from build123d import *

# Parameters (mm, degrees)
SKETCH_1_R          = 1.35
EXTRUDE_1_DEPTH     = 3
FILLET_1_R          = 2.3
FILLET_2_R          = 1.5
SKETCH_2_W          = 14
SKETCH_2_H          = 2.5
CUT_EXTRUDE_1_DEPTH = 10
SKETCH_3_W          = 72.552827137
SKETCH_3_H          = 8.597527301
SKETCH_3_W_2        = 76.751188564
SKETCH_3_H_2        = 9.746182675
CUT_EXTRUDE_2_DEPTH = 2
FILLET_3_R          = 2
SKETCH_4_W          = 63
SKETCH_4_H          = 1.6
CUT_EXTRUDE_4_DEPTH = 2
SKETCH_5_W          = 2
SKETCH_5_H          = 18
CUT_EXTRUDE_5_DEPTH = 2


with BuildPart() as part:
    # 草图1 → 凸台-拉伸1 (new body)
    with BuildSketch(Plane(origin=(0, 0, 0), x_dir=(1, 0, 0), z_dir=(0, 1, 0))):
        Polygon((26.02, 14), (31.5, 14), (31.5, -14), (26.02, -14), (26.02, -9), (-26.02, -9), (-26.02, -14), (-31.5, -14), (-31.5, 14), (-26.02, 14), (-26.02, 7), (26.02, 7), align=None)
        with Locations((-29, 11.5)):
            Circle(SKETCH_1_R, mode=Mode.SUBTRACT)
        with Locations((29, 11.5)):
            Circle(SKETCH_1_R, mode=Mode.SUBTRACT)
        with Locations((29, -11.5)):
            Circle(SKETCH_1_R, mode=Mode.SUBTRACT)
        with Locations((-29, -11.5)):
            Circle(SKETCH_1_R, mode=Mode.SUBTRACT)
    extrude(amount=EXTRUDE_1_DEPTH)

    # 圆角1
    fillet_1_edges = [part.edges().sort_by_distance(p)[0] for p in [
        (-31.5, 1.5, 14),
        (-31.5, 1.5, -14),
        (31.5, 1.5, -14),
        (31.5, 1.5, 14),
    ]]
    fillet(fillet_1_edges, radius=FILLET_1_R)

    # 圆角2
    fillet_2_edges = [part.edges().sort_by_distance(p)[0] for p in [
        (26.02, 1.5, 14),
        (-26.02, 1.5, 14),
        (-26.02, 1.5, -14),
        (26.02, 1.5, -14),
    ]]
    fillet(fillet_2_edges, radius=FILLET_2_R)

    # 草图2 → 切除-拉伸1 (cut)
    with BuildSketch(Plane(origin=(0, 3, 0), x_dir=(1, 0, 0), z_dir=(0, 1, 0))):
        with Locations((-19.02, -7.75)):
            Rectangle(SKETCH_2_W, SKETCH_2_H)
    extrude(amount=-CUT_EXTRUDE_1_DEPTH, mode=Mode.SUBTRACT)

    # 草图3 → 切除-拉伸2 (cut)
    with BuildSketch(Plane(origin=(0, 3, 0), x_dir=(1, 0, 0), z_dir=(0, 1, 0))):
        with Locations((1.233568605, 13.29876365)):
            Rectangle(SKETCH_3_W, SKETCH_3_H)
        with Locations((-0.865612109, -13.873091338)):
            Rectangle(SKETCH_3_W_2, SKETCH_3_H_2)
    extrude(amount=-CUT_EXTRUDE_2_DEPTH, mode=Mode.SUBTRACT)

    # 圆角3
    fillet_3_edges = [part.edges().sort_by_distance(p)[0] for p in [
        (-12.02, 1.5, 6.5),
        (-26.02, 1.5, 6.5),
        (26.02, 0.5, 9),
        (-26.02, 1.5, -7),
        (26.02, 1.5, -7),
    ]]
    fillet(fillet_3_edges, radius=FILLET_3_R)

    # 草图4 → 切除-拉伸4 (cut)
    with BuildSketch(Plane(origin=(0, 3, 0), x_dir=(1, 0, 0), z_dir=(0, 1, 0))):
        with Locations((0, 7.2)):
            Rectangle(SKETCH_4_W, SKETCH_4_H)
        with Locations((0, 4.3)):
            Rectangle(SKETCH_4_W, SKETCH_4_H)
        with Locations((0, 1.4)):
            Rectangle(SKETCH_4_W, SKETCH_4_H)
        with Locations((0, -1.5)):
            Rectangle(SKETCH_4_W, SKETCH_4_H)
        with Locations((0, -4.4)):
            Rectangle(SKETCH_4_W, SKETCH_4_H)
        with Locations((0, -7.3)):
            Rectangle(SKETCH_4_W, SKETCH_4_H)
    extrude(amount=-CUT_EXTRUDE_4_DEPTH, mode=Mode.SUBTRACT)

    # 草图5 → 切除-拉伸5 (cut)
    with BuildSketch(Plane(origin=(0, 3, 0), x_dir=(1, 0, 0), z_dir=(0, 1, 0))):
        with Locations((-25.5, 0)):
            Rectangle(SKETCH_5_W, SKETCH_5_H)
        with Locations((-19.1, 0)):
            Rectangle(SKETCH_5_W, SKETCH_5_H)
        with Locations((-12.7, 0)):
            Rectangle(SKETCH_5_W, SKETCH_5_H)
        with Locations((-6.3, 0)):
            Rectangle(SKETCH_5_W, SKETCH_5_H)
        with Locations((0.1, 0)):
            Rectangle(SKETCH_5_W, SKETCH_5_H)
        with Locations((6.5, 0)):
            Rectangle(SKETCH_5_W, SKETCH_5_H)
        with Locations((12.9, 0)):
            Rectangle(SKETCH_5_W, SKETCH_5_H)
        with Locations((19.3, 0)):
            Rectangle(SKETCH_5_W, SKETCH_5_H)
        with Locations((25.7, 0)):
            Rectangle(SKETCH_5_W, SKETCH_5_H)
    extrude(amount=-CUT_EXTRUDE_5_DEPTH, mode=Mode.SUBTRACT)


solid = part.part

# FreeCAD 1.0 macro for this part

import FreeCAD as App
import Part
import Sketcher
Q = App.Units.Quantity


def edges_at(feature, points):
    """Names of the edges that pass closest to the given points."""
    edges = feature.Shape.Edges
    near = lambda p: min(range(len(edges)), key=lambda i: edges[i].distToShape(Part.Vertex(*p))[0])
    return sorted({f"Edge{near(p) + 1}" for p in points})

doc = App.newDocument("Part")
body = doc.addObject("PartDesign::Body", "Body")

# Sketch on XZ plane
sketch1 = doc.addObject("Sketcher::SketchObject", "Sketch")
body.addObject(sketch1)
sketch1.AttachmentSupport = (doc.XZ_Plane, [""])
sketch1.MapMode = "FlatFace"
sketch1.addGeometry([
    Part.LineSegment(App.Vector(31.5, -14, 0), App.Vector(26, -14, 0)),  # 0
    Part.LineSegment(App.Vector(26, -14, 0), App.Vector(26, -7, 0)),  # 1
    Part.LineSegment(App.Vector(26, -7, 0), App.Vector(-26, -7, 0)),  # 2
    Part.LineSegment(App.Vector(-26, -7, 0), App.Vector(-26, -14, 0)),  # 3
    Part.LineSegment(App.Vector(-26, -14, 0), App.Vector(-31.5, -14, 0)),  # 4
    Part.LineSegment(App.Vector(-31.5, -14, 0), App.Vector(-31.5, 14, 0)),  # 5
    Part.LineSegment(App.Vector(-31.5, 14, 0), App.Vector(-26, 14, 0)),  # 6
    Part.LineSegment(App.Vector(-26, 14, 0), App.Vector(-26, 9, 0)),  # 7
    Part.LineSegment(App.Vector(-26, 9, 0), App.Vector(26, 9, 0)),  # 8
    Part.LineSegment(App.Vector(26, 9, 0), App.Vector(26, 14, 0)),  # 9
    Part.LineSegment(App.Vector(26, 14, 0), App.Vector(31.5, 14, 0)),  # 10
    Part.LineSegment(App.Vector(31.5, 14, 0), App.Vector(31.5, -14, 0)),  # 11
    Part.Circle(App.Vector(29, 11.5, 0), App.Vector(0, 0, 1), 1.4),  # 12
    Part.Circle(App.Vector(-29, 11.5, 0), App.Vector(0, 0, 1), 1.4),  # 13
    Part.Circle(App.Vector(29, -11.5, 0), App.Vector(0, 0, 1), 1.4),  # 14
    Part.Circle(App.Vector(-29, -11.5, 0), App.Vector(0, 0, 1), 1.4),  # 15
], False)
sketch1.addConstraint([
    Sketcher.Constraint("Coincident", 0, 2, 1, 1),
    Sketcher.Constraint("Coincident", 1, 2, 2, 1),
    Sketcher.Constraint("Coincident", 2, 2, 3, 1),
    Sketcher.Constraint("Coincident", 3, 2, 4, 1),
    Sketcher.Constraint("Coincident", 4, 2, 5, 1),
    Sketcher.Constraint("Coincident", 5, 2, 6, 1),
    Sketcher.Constraint("Coincident", 6, 2, 7, 1),
    Sketcher.Constraint("Coincident", 7, 2, 8, 1),
    Sketcher.Constraint("Coincident", 8, 2, 9, 1),
    Sketcher.Constraint("Coincident", 9, 2, 10, 1),
    Sketcher.Constraint("Coincident", 10, 2, 11, 1),
    Sketcher.Constraint("Coincident", 11, 2, 0, 1),
    Sketcher.Constraint("Horizontal", 0),
    Sketcher.Constraint("Vertical", 1),
    Sketcher.Constraint("Horizontal", 2),
    Sketcher.Constraint("Vertical", 3),
    Sketcher.Constraint("Horizontal", 4),
    Sketcher.Constraint("Vertical", 5),
    Sketcher.Constraint("Horizontal", 6),
    Sketcher.Constraint("Vertical", 7),
    Sketcher.Constraint("Horizontal", 8),
    Sketcher.Constraint("Vertical", 9),
    Sketcher.Constraint("Horizontal", 10),
    Sketcher.Constraint("Vertical", 11),
    Sketcher.Constraint("Equal", 12, 13),
    Sketcher.Constraint("Equal", 13, 14),
    Sketcher.Constraint("Equal", 14, 15),
    Sketcher.Constraint("Symmetric", 13, 3, 14, 3, -1, 1),
    Sketcher.Constraint("Symmetric", 12, 3, 15, 3, -1, 1),
    Sketcher.Constraint("Symmetric", 0, 2, 6, 2, -1, 1),
    Sketcher.Constraint("Symmetric", 3, 2, 9, 2, -1, 1),
    Sketcher.Constraint("Symmetric", 12, 3, 13, 3, -2),
    Sketcher.Constraint("Symmetric", 0, 2, 3, 2, -2),
    Sketcher.Constraint("Equal", 0, 4),
    Sketcher.Constraint("Diameter", 12, Q("2.7 mm")),
    Sketcher.Constraint("DistanceY", 1, 1, 1, 2, Q("7 mm")),
    Sketcher.Constraint("DistanceY", 5, 1, 5, 2, Q("28 mm")),
    Sketcher.Constraint("DistanceY", 7, 2, 7, 1, Q("5 mm")),
    Sketcher.Constraint("DistanceX", -1, 1, 12, 3, Q("29 mm")),
    Sketcher.Constraint("DistanceY", 14, 3, 12, 3, Q("23 mm")),
    Sketcher.Constraint("DistanceX", 0, 2, 0, 1, Q("5.48 mm")),
    Sketcher.Constraint("DistanceX", 2, 2, 2, 1, Q("52.04 mm")),
])
pad1 = doc.addObject("PartDesign::Pad", "Pad")
body.addObject(pad1)
pad1.Profile = sketch1
pad1.Length = 3
pad1.Reversed = True
doc.recompute()

fillet = doc.addObject("PartDesign::Fillet", "Fillet")
body.addObject(fillet)
fillet.Base = (pad1, edges_at(pad1, [
    (-31.5, 1.5, 14),
    (-31.5, 1.5, -14),
    (31.5, 1.5, -14),
    (31.5, 1.5, 14),
]))
fillet.Radius = 2.3
doc.recompute()

fillet2 = doc.addObject("PartDesign::Fillet", "Fillet001")
body.addObject(fillet2)
fillet2.Base = (fillet, edges_at(fillet, [
    (26.02, 1.5, 14),
    (-26.02, 1.5, 14),
    (-26.02, 1.5, -14),
    (26.02, 1.5, -14),
]))
fillet2.Radius = 1.5

# Sketch on XZ plane
sketch2 = doc.addObject("Sketcher::SketchObject", "Sketch001")
body.addObject(sketch2)
sketch2.AttachmentSupport = (doc.XZ_Plane, [""])
sketch2.MapMode = "FlatFace"
sketch2.AttachmentOffset = App.Placement(App.Vector(0, 0, -3), App.Rotation())
sketch2.addGeometry([
    Part.LineSegment(App.Vector(-26, 6.5, 0), App.Vector(-26, 9, 0)),
    Part.LineSegment(App.Vector(-26, 9, 0), App.Vector(-12, 9, 0)),
    Part.LineSegment(App.Vector(-12, 9, 0), App.Vector(-12, 6.5, 0)),
    Part.LineSegment(App.Vector(-12, 6.5, 0), App.Vector(-26, 6.5, 0)),
], False)
sketch2.addConstraint([
    Sketcher.Constraint("Coincident", 0, 2, 1, 1),
    Sketcher.Constraint("Coincident", 1, 2, 2, 1),
    Sketcher.Constraint("Coincident", 2, 2, 3, 1),
    Sketcher.Constraint("Coincident", 3, 2, 0, 1),
    Sketcher.Constraint("Vertical", 0),
    Sketcher.Constraint("Horizontal", 1),
    Sketcher.Constraint("Vertical", 2),
    Sketcher.Constraint("Horizontal", 3),
    Sketcher.Constraint("DistanceX", 1, 1, 1, 2, Q("14 mm")),
    Sketcher.Constraint("DistanceY", 0, 1, 0, 2, Q("2.5 mm")),
    Sketcher.Constraint("DistanceY", -1, 1, 0, 2, Q("9 mm")),
    Sketcher.Constraint("DistanceX", 0, 2, -1, 1, Q("26.02 mm")),
])
pocket1 = doc.addObject("PartDesign::Pocket", "Pocket")
body.addObject(pocket1)
pocket1.Profile = sketch2
pocket1.Length = 10
pocket1.Reversed = True

# Sketch on XZ plane
sketch3 = doc.addObject("Sketcher::SketchObject", "Sketch002")
body.addObject(sketch3)
sketch3.AttachmentSupport = (doc.XZ_Plane, [""])
sketch3.MapMode = "FlatFace"
sketch3.AttachmentOffset = App.Placement(App.Vector(0, 0, -3), App.Rotation())
sketch3.addGeometry([
    Part.LineSegment(App.Vector(-35, -18, 0), App.Vector(-35, -9, 0)),  # 0
    Part.LineSegment(App.Vector(-35, -9, 0), App.Vector(38, -9, 0)),  # 1
    Part.LineSegment(App.Vector(38, -9, 0), App.Vector(38, -18, 0)),  # 2
    Part.LineSegment(App.Vector(38, -18, 0), App.Vector(-35, -18, 0)),  # 3
    Part.LineSegment(App.Vector(-39, 9, 0), App.Vector(-39, 19, 0)),  # 4
    Part.LineSegment(App.Vector(-39, 19, 0), App.Vector(38, 19, 0)),  # 5
    Part.LineSegment(App.Vector(38, 19, 0), App.Vector(38, 9, 0)),  # 6
    Part.LineSegment(App.Vector(38, 9, 0), App.Vector(-39, 9, 0)),  # 7
], False)
sketch3.addConstraint([
    Sketcher.Constraint("Coincident", 0, 2, 1, 1),
    Sketcher.Constraint("Coincident", 1, 2, 2, 1),
    Sketcher.Constraint("Coincident", 2, 2, 3, 1),
    Sketcher.Constraint("Coincident", 3, 2, 0, 1),
    Sketcher.Constraint("Coincident", 4, 2, 5, 1),
    Sketcher.Constraint("Coincident", 5, 2, 6, 1),
    Sketcher.Constraint("Coincident", 6, 2, 7, 1),
    Sketcher.Constraint("Coincident", 7, 2, 4, 1),
    Sketcher.Constraint("Vertical", 0),
    Sketcher.Constraint("Horizontal", 1),
    Sketcher.Constraint("Vertical", 2),
    Sketcher.Constraint("Horizontal", 3),
    Sketcher.Constraint("Vertical", 4),
    Sketcher.Constraint("Horizontal", 5),
    Sketcher.Constraint("Vertical", 6),
    Sketcher.Constraint("Horizontal", 7),
    Sketcher.Constraint("Symmetric", 1, 2, 6, 2, -1),
    Sketcher.Constraint("DistanceY", 0, 2, -1, 1, Q("9 mm")),
    Sketcher.Constraint("DistanceX", 5, 1, 5, 2, Q("76.751189 mm")),
    Sketcher.Constraint("DistanceX", 1, 1, 1, 2, Q("72.552827 mm")),
    Sketcher.Constraint("DistanceY", 0, 1, 0, 2, Q("8.597527 mm")),
    Sketcher.Constraint("DistanceY", 4, 1, 4, 2, Q("9.746183 mm")),
    Sketcher.Constraint("DistanceX", 0, 2, -1, 1, Q("35.042845 mm")),
])
pocket2 = doc.addObject("PartDesign::Pocket", "Pocket001")
body.addObject(pocket2)
pocket2.Profile = sketch3
pocket2.Length = 2
pocket2.Reversed = True
doc.recompute()

fillet3 = doc.addObject("PartDesign::Fillet", "Fillet002")
body.addObject(fillet3)
fillet3.Base = (pocket2, edges_at(pocket2, [
    (-12.02, 1.5, 6.5),
    (-26.02, 1.5, 6.5),
    (26.02, 0.5, 9),
    (-26.02, 1.5, -7),
    (26.02, 1.5, -7),
]))
fillet3.Radius = 2

# Sketch on XZ plane
sketch4 = doc.addObject("Sketcher::SketchObject", "Sketch003")
body.addObject(sketch4)
sketch4.AttachmentSupport = (doc.XZ_Plane, [""])
sketch4.MapMode = "FlatFace"
sketch4.AttachmentOffset = App.Placement(App.Vector(0, 0, -3), App.Rotation())
sketch4.addGeometry([
    Part.LineSegment(App.Vector(-31.5, -8, 0), App.Vector(-31.5, -6.4, 0)),  # 0
    Part.LineSegment(App.Vector(-31.5, -6.4, 0), App.Vector(31.5, -6.4, 0)),  # 1
    Part.LineSegment(App.Vector(31.5, -6.4, 0), App.Vector(31.5, -8, 0)),  # 2
    Part.LineSegment(App.Vector(31.5, -8, 0), App.Vector(-31.5, -8, 0)),  # 3
    Part.LineSegment(App.Vector(-31.5, -5.1, 0), App.Vector(-31.5, -3.5, 0)),  # 4
    Part.LineSegment(App.Vector(-31.5, -3.5, 0), App.Vector(31.5, -3.5, 0)),  # 5
    Part.LineSegment(App.Vector(31.5, -3.5, 0), App.Vector(31.5, -5.1, 0)),  # 6
    Part.LineSegment(App.Vector(31.5, -5.1, 0), App.Vector(-31.5, -5.1, 0)),  # 7
    Part.LineSegment(App.Vector(-31.5, -2.2, 0), App.Vector(-31.5, -0.6, 0)),  # 8
    Part.LineSegment(App.Vector(-31.5, -0.6, 0), App.Vector(31.5, -0.6, 0)),  # 9
    Part.LineSegment(App.Vector(31.5, -0.6, 0), App.Vector(31.5, -2.2, 0)),  # 10
    Part.LineSegment(App.Vector(31.5, -2.2, 0), App.Vector(-31.5, -2.2, 0)),  # 11
    Part.LineSegment(App.Vector(-31.5, 0.7, 0), App.Vector(-31.5, 2.3, 0)),  # 12
    Part.LineSegment(App.Vector(-31.5, 2.3, 0), App.Vector(31.5, 2.3, 0)),  # 13
    Part.LineSegment(App.Vector(31.5, 2.3, 0), App.Vector(31.5, 0.7, 0)),  # 14
    Part.LineSegment(App.Vector(31.5, 0.7, 0), App.Vector(-31.5, 0.7, 0)),  # 15
    Part.LineSegment(App.Vector(-31.5, 3.6, 0), App.Vector(-31.5, 5.2, 0)),  # 16
    Part.LineSegment(App.Vector(-31.5, 5.2, 0), App.Vector(31.5, 5.2, 0)),  # 17
    Part.LineSegment(App.Vector(31.5, 5.2, 0), App.Vector(31.5, 3.6, 0)),  # 18
    Part.LineSegment(App.Vector(31.5, 3.6, 0), App.Vector(-31.5, 3.6, 0)),  # 19
    Part.LineSegment(App.Vector(-31.5, 6.5, 0), App.Vector(-31.5, 8.1, 0)),  # 20
    Part.LineSegment(App.Vector(-31.5, 8.1, 0), App.Vector(31.5, 8.1, 0)),  # 21
    Part.LineSegment(App.Vector(31.5, 8.1, 0), App.Vector(31.5, 6.5, 0)),  # 22
    Part.LineSegment(App.Vector(31.5, 6.5, 0), App.Vector(-31.5, 6.5, 0)),  # 23
], False)
sketch4.addConstraint([
    Sketcher.Constraint("Coincident", 0, 2, 1, 1),
    Sketcher.Constraint("Coincident", 1, 2, 2, 1),
    Sketcher.Constraint("Coincident", 2, 2, 3, 1),
    Sketcher.Constraint("Coincident", 3, 2, 0, 1),
    Sketcher.Constraint("Coincident", 4, 2, 5, 1),
    Sketcher.Constraint("Coincident", 5, 2, 6, 1),
    Sketcher.Constraint("Coincident", 6, 2, 7, 1),
    Sketcher.Constraint("Coincident", 7, 2, 4, 1),
    Sketcher.Constraint("Coincident", 8, 2, 9, 1),
    Sketcher.Constraint("Coincident", 9, 2, 10, 1),
    Sketcher.Constraint("Coincident", 10, 2, 11, 1),
    Sketcher.Constraint("Coincident", 11, 2, 8, 1),
    Sketcher.Constraint("Coincident", 12, 2, 13, 1),
    Sketcher.Constraint("Coincident", 13, 2, 14, 1),
    Sketcher.Constraint("Coincident", 14, 2, 15, 1),
    Sketcher.Constraint("Coincident", 15, 2, 12, 1),
    Sketcher.Constraint("Coincident", 16, 2, 17, 1),
    Sketcher.Constraint("Coincident", 17, 2, 18, 1),
    Sketcher.Constraint("Coincident", 18, 2, 19, 1),
    Sketcher.Constraint("Coincident", 19, 2, 16, 1),
    Sketcher.Constraint("Coincident", 20, 2, 21, 1),
    Sketcher.Constraint("Coincident", 21, 2, 22, 1),
    Sketcher.Constraint("Coincident", 22, 2, 23, 1),
    Sketcher.Constraint("Coincident", 23, 2, 20, 1),
    Sketcher.Constraint("Vertical", 0),
    Sketcher.Constraint("Horizontal", 1),
    Sketcher.Constraint("Vertical", 2),
    Sketcher.Constraint("Horizontal", 3),
    Sketcher.Constraint("Vertical", 4),
    Sketcher.Constraint("Horizontal", 5),
    Sketcher.Constraint("Vertical", 6),
    Sketcher.Constraint("Horizontal", 7),
    Sketcher.Constraint("Vertical", 8),
    Sketcher.Constraint("Horizontal", 9),
    Sketcher.Constraint("Vertical", 10),
    Sketcher.Constraint("Horizontal", 11),
    Sketcher.Constraint("Vertical", 12),
    Sketcher.Constraint("Horizontal", 13),
    Sketcher.Constraint("Vertical", 14),
    Sketcher.Constraint("Horizontal", 15),
    Sketcher.Constraint("Vertical", 16),
    Sketcher.Constraint("Horizontal", 17),
    Sketcher.Constraint("Vertical", 18),
    Sketcher.Constraint("Horizontal", 19),
    Sketcher.Constraint("Vertical", 20),
    Sketcher.Constraint("Horizontal", 21),
    Sketcher.Constraint("Vertical", 22),
    Sketcher.Constraint("Horizontal", 23),
    Sketcher.Constraint("Vertical", 3, 2, 4, 2),
    Sketcher.Constraint("Vertical", 2, 2, 5, 2),
    Sketcher.Constraint("Vertical", 7, 2, 8, 2),
    Sketcher.Constraint("Vertical", 6, 2, 9, 2),
    Sketcher.Constraint("Vertical", 11, 2, 12, 2),
    Sketcher.Constraint("Vertical", 10, 2, 13, 2),
    Sketcher.Constraint("Vertical", 15, 2, 16, 2),
    Sketcher.Constraint("Vertical", 14, 2, 17, 2),
    Sketcher.Constraint("Vertical", 19, 2, 20, 2),
    Sketcher.Constraint("Vertical", 18, 2, 21, 2),
    Sketcher.Constraint("Equal", 2, 4),
    Sketcher.Constraint("Equal", 6, 8),
    Sketcher.Constraint("Equal", 10, 12),
    Sketcher.Constraint("Equal", 14, 16),
    Sketcher.Constraint("Equal", 18, 20),
    Sketcher.Constraint("DistanceX", 1, 1, 1, 2, Q("63 mm")),
    Sketcher.Constraint("DistanceY", 0, 1, 0, 2, Q("1.6 mm")),
    Sketcher.Constraint("DistanceY", 2, 2, -1, 1, Q("8 mm")),
    Sketcher.Constraint("DistanceX", 0, 2, -1, 1, Q("31.5 mm")),
    Sketcher.Constraint("DistanceY", 4, 2, -1, 1, Q("3.5 mm")),
    Sketcher.Constraint("DistanceY", 8, 2, -1, 1, Q("0.6 mm")),
    Sketcher.Constraint("DistanceY", -1, 1, 12, 2, Q("2.3 mm")),
    Sketcher.Constraint("DistanceY", -1, 1, 16, 2, Q("5.2 mm")),
    Sketcher.Constraint("DistanceY", -1, 1, 20, 2, Q("8.1 mm")),
])
pocket3 = doc.addObject("PartDesign::Pocket", "Pocket002")
body.addObject(pocket3)
pocket3.Profile = sketch4
pocket3.Length = 2
pocket3.Reversed = True

# Sketch on XZ plane
sketch5 = doc.addObject("Sketcher::SketchObject", "Sketch004")
body.addObject(sketch5)
sketch5.AttachmentSupport = (doc.XZ_Plane, [""])
sketch5.MapMode = "FlatFace"
sketch5.AttachmentOffset = App.Placement(App.Vector(0, 0, -3), App.Rotation())
sketch5.addGeometry([
    Part.LineSegment(App.Vector(-26.5, -9, 0), App.Vector(-26.5, 9, 0)),  # 0
    Part.LineSegment(App.Vector(-26.5, 9, 0), App.Vector(-24.5, 9, 0)),  # 1
    Part.LineSegment(App.Vector(-24.5, 9, 0), App.Vector(-24.5, -9, 0)),  # 2
    Part.LineSegment(App.Vector(-24.5, -9, 0), App.Vector(-26.5, -9, 0)),  # 3
    Part.LineSegment(App.Vector(-20.1, -9, 0), App.Vector(-20.1, 9, 0)),  # 4
    Part.LineSegment(App.Vector(-20.1, 9, 0), App.Vector(-18.1, 9, 0)),  # 5
    Part.LineSegment(App.Vector(-18.1, 9, 0), App.Vector(-18.1, -9, 0)),  # 6
    Part.LineSegment(App.Vector(-18.1, -9, 0), App.Vector(-20.1, -9, 0)),  # 7
    Part.LineSegment(App.Vector(-13.7, -9, 0), App.Vector(-13.7, 9, 0)),  # 8
    Part.LineSegment(App.Vector(-13.7, 9, 0), App.Vector(-11.7, 9, 0)),  # 9
    Part.LineSegment(App.Vector(-11.7, 9, 0), App.Vector(-11.7, -9, 0)),  # 10
    Part.LineSegment(App.Vector(-11.7, -9, 0), App.Vector(-13.7, -9, 0)),  # 11
    Part.LineSegment(App.Vector(-7.3, -9, 0), App.Vector(-7.3, 9, 0)),  # 12
    Part.LineSegment(App.Vector(-7.3, 9, 0), App.Vector(-5.3, 9, 0)),  # 13
    Part.LineSegment(App.Vector(-5.3, 9, 0), App.Vector(-5.3, -9, 0)),  # 14
    Part.LineSegment(App.Vector(-5.3, -9, 0), App.Vector(-7.3, -9, 0)),  # 15
    Part.LineSegment(App.Vector(-0.9, -9, 0), App.Vector(-0.9, 9, 0)),  # 16
    Part.LineSegment(App.Vector(-0.9, 9, 0), App.Vector(1.1, 9, 0)),  # 17
    Part.LineSegment(App.Vector(1.1, 9, 0), App.Vector(1.1, -9, 0)),  # 18
    Part.LineSegment(App.Vector(1.1, -9, 0), App.Vector(-0.9, -9, 0)),  # 19
    Part.LineSegment(App.Vector(5.5, -9, 0), App.Vector(5.5, 9, 0)),  # 20
    Part.LineSegment(App.Vector(5.5, 9, 0), App.Vector(7.5, 9, 0)),  # 21
    Part.LineSegment(App.Vector(7.5, 9, 0), App.Vector(7.5, -9, 0)),  # 22
    Part.LineSegment(App.Vector(7.5, -9, 0), App.Vector(5.5, -9, 0)),  # 23
    Part.LineSegment(App.Vector(11.9, -9, 0), App.Vector(11.9, 9, 0)),  # 24
    Part.LineSegment(App.Vector(11.9, 9, 0), App.Vector(13.9, 9, 0)),  # 25
    Part.LineSegment(App.Vector(13.9, 9, 0), App.Vector(13.9, -9, 0)),  # 26
    Part.LineSegment(App.Vector(13.9, -9, 0), App.Vector(11.9, -9, 0)),  # 27
    Part.LineSegment(App.Vector(18.3, -9, 0), App.Vector(18.3, 9, 0)),  # 28
    Part.LineSegment(App.Vector(18.3, 9, 0), App.Vector(20.3, 9, 0)),  # 29
    Part.LineSegment(App.Vector(20.3, 9, 0), App.Vector(20.3, -9, 0)),  # 30
    Part.LineSegment(App.Vector(20.3, -9, 0), App.Vector(18.3, -9, 0)),  # 31
    Part.LineSegment(App.Vector(24.7, -9, 0), App.Vector(24.7, 9, 0)),  # 32
    Part.LineSegment(App.Vector(24.7, 9, 0), App.Vector(26.7, 9, 0)),  # 33
    Part.LineSegment(App.Vector(26.7, 9, 0), App.Vector(26.7, -9, 0)),  # 34
    Part.LineSegment(App.Vector(26.7, -9, 0), App.Vector(24.7, -9, 0)),  # 35
], False)
sketch5.addConstraint([
    Sketcher.Constraint("Coincident", 0, 2, 1, 1),
    Sketcher.Constraint("Coincident", 1, 2, 2, 1),
    Sketcher.Constraint("Coincident", 2, 2, 3, 1),
    Sketcher.Constraint("Coincident", 3, 2, 0, 1),
    Sketcher.Constraint("Coincident", 4, 2, 5, 1),
    Sketcher.Constraint("Coincident", 5, 2, 6, 1),
    Sketcher.Constraint("Coincident", 6, 2, 7, 1),
    Sketcher.Constraint("Coincident", 7, 2, 4, 1),
    Sketcher.Constraint("Coincident", 8, 2, 9, 1),
    Sketcher.Constraint("Coincident", 9, 2, 10, 1),
    Sketcher.Constraint("Coincident", 10, 2, 11, 1),
    Sketcher.Constraint("Coincident", 11, 2, 8, 1),
    Sketcher.Constraint("Coincident", 12, 2, 13, 1),
    Sketcher.Constraint("Coincident", 13, 2, 14, 1),
    Sketcher.Constraint("Coincident", 14, 2, 15, 1),
    Sketcher.Constraint("Coincident", 15, 2, 12, 1),
    Sketcher.Constraint("Coincident", 16, 2, 17, 1),
    Sketcher.Constraint("Coincident", 17, 2, 18, 1),
    Sketcher.Constraint("Coincident", 18, 2, 19, 1),
    Sketcher.Constraint("Coincident", 19, 2, 16, 1),
    Sketcher.Constraint("Coincident", 20, 2, 21, 1),
    Sketcher.Constraint("Coincident", 21, 2, 22, 1),
    Sketcher.Constraint("Coincident", 22, 2, 23, 1),
    Sketcher.Constraint("Coincident", 23, 2, 20, 1),
    Sketcher.Constraint("Coincident", 24, 2, 25, 1),
    Sketcher.Constraint("Coincident", 25, 2, 26, 1),
    Sketcher.Constraint("Coincident", 26, 2, 27, 1),
    Sketcher.Constraint("Coincident", 27, 2, 24, 1),
    Sketcher.Constraint("Coincident", 28, 2, 29, 1),
    Sketcher.Constraint("Coincident", 29, 2, 30, 1),
    Sketcher.Constraint("Coincident", 30, 2, 31, 1),
    Sketcher.Constraint("Coincident", 31, 2, 28, 1),
    Sketcher.Constraint("Coincident", 32, 2, 33, 1),
    Sketcher.Constraint("Coincident", 33, 2, 34, 1),
    Sketcher.Constraint("Coincident", 34, 2, 35, 1),
    Sketcher.Constraint("Coincident", 35, 2, 32, 1),
    Sketcher.Constraint("Vertical", 0),
    Sketcher.Constraint("Horizontal", 1),
    Sketcher.Constraint("Vertical", 2),
    Sketcher.Constraint("Horizontal", 3),
    Sketcher.Constraint("Vertical", 4),
    Sketcher.Constraint("Horizontal", 5),
    Sketcher.Constraint("Vertical", 6),
    Sketcher.Constraint("Horizontal", 7),
    Sketcher.Constraint("Vertical", 8),
    Sketcher.Constraint("Horizontal", 9),
    Sketcher.Constraint("Vertical", 10),
    Sketcher.Constraint("Horizontal", 11),
    Sketcher.Constraint("Vertical", 12),
    Sketcher.Constraint("Horizontal", 13),
    Sketcher.Constraint("Vertical", 14),
    Sketcher.Constraint("Horizontal", 15),
    Sketcher.Constraint("Vertical", 16),
    Sketcher.Constraint("Horizontal", 17),
    Sketcher.Constraint("Vertical", 18),
    Sketcher.Constraint("Horizontal", 19),
    Sketcher.Constraint("Vertical", 20),
    Sketcher.Constraint("Horizontal", 21),
    Sketcher.Constraint("Vertical", 22),
    Sketcher.Constraint("Horizontal", 23),
    Sketcher.Constraint("Vertical", 24),
    Sketcher.Constraint("Horizontal", 25),
    Sketcher.Constraint("Vertical", 26),
    Sketcher.Constraint("Horizontal", 27),
    Sketcher.Constraint("Vertical", 28),
    Sketcher.Constraint("Horizontal", 29),
    Sketcher.Constraint("Vertical", 30),
    Sketcher.Constraint("Horizontal", 31),
    Sketcher.Constraint("Vertical", 32),
    Sketcher.Constraint("Horizontal", 33),
    Sketcher.Constraint("Vertical", 34),
    Sketcher.Constraint("Horizontal", 35),
    Sketcher.Constraint("Horizontal", 1, 2, 4, 2),
    Sketcher.Constraint("Horizontal", 3, 2, 6, 2),
    Sketcher.Constraint("Horizontal", 5, 2, 8, 2),
    Sketcher.Constraint("Horizontal", 7, 2, 10, 2),
    Sketcher.Constraint("Horizontal", 9, 2, 12, 2),
    Sketcher.Constraint("Horizontal", 11, 2, 14, 2),
    Sketcher.Constraint("Horizontal", 13, 2, 16, 2),
    Sketcher.Constraint("Horizontal", 15, 2, 18, 2),
    Sketcher.Constraint("Horizontal", 17, 2, 20, 2),
    Sketcher.Constraint("Horizontal", 19, 2, 22, 2),
    Sketcher.Constraint("Horizontal", 21, 2, 24, 2),
    Sketcher.Constraint("Horizontal", 23, 2, 26, 2),
    Sketcher.Constraint("Horizontal", 25, 2, 28, 2),
    Sketcher.Constraint("Horizontal", 27, 2, 30, 2),
    Sketcher.Constraint("Horizontal", 29, 2, 32, 2),
    Sketcher.Constraint("Horizontal", 31, 2, 34, 2),
    Sketcher.Constraint("Equal", 3, 5),
    Sketcher.Constraint("Equal", 7, 9),
    Sketcher.Constraint("Equal", 11, 13),
    Sketcher.Constraint("Equal", 15, 17),
    Sketcher.Constraint("Equal", 19, 21),
    Sketcher.Constraint("Equal", 23, 25),
    Sketcher.Constraint("Equal", 27, 29),
    Sketcher.Constraint("Equal", 31, 33),
    Sketcher.Constraint("DistanceX", 1, 1, 1, 2, Q("2 mm")),
    Sketcher.Constraint("DistanceY", 0, 1, 0, 2, Q("18 mm")),
    Sketcher.Constraint("DistanceY", -1, 1, 0, 2, Q("9 mm")),
    Sketcher.Constraint("DistanceX", 0, 2, -1, 1, Q("26.5 mm")),
    Sketcher.Constraint("DistanceX", 4, 2, -1, 1, Q("20.1 mm")),
    Sketcher.Constraint("DistanceX", 8, 2, -1, 1, Q("13.7 mm")),
    Sketcher.Constraint("DistanceX", 12, 2, -1, 1, Q("7.3 mm")),
    Sketcher.Constraint("DistanceX", 16, 2, -1, 1, Q("0.9 mm")),
    Sketcher.Constraint("DistanceX", -1, 1, 20, 2, Q("5.5 mm")),
    Sketcher.Constraint("DistanceX", -1, 1, 24, 2, Q("11.9 mm")),
    Sketcher.Constraint("DistanceX", -1, 1, 28, 2, Q("18.3 mm")),
    Sketcher.Constraint("DistanceX", -1, 1, 32, 2, Q("24.7 mm")),
])
pocket4 = doc.addObject("PartDesign::Pocket", "Pocket003")
body.addObject(pocket4)
pocket4.Profile = sketch5
pocket4.Length = 2
pocket4.Reversed = True

doc.recompute()
